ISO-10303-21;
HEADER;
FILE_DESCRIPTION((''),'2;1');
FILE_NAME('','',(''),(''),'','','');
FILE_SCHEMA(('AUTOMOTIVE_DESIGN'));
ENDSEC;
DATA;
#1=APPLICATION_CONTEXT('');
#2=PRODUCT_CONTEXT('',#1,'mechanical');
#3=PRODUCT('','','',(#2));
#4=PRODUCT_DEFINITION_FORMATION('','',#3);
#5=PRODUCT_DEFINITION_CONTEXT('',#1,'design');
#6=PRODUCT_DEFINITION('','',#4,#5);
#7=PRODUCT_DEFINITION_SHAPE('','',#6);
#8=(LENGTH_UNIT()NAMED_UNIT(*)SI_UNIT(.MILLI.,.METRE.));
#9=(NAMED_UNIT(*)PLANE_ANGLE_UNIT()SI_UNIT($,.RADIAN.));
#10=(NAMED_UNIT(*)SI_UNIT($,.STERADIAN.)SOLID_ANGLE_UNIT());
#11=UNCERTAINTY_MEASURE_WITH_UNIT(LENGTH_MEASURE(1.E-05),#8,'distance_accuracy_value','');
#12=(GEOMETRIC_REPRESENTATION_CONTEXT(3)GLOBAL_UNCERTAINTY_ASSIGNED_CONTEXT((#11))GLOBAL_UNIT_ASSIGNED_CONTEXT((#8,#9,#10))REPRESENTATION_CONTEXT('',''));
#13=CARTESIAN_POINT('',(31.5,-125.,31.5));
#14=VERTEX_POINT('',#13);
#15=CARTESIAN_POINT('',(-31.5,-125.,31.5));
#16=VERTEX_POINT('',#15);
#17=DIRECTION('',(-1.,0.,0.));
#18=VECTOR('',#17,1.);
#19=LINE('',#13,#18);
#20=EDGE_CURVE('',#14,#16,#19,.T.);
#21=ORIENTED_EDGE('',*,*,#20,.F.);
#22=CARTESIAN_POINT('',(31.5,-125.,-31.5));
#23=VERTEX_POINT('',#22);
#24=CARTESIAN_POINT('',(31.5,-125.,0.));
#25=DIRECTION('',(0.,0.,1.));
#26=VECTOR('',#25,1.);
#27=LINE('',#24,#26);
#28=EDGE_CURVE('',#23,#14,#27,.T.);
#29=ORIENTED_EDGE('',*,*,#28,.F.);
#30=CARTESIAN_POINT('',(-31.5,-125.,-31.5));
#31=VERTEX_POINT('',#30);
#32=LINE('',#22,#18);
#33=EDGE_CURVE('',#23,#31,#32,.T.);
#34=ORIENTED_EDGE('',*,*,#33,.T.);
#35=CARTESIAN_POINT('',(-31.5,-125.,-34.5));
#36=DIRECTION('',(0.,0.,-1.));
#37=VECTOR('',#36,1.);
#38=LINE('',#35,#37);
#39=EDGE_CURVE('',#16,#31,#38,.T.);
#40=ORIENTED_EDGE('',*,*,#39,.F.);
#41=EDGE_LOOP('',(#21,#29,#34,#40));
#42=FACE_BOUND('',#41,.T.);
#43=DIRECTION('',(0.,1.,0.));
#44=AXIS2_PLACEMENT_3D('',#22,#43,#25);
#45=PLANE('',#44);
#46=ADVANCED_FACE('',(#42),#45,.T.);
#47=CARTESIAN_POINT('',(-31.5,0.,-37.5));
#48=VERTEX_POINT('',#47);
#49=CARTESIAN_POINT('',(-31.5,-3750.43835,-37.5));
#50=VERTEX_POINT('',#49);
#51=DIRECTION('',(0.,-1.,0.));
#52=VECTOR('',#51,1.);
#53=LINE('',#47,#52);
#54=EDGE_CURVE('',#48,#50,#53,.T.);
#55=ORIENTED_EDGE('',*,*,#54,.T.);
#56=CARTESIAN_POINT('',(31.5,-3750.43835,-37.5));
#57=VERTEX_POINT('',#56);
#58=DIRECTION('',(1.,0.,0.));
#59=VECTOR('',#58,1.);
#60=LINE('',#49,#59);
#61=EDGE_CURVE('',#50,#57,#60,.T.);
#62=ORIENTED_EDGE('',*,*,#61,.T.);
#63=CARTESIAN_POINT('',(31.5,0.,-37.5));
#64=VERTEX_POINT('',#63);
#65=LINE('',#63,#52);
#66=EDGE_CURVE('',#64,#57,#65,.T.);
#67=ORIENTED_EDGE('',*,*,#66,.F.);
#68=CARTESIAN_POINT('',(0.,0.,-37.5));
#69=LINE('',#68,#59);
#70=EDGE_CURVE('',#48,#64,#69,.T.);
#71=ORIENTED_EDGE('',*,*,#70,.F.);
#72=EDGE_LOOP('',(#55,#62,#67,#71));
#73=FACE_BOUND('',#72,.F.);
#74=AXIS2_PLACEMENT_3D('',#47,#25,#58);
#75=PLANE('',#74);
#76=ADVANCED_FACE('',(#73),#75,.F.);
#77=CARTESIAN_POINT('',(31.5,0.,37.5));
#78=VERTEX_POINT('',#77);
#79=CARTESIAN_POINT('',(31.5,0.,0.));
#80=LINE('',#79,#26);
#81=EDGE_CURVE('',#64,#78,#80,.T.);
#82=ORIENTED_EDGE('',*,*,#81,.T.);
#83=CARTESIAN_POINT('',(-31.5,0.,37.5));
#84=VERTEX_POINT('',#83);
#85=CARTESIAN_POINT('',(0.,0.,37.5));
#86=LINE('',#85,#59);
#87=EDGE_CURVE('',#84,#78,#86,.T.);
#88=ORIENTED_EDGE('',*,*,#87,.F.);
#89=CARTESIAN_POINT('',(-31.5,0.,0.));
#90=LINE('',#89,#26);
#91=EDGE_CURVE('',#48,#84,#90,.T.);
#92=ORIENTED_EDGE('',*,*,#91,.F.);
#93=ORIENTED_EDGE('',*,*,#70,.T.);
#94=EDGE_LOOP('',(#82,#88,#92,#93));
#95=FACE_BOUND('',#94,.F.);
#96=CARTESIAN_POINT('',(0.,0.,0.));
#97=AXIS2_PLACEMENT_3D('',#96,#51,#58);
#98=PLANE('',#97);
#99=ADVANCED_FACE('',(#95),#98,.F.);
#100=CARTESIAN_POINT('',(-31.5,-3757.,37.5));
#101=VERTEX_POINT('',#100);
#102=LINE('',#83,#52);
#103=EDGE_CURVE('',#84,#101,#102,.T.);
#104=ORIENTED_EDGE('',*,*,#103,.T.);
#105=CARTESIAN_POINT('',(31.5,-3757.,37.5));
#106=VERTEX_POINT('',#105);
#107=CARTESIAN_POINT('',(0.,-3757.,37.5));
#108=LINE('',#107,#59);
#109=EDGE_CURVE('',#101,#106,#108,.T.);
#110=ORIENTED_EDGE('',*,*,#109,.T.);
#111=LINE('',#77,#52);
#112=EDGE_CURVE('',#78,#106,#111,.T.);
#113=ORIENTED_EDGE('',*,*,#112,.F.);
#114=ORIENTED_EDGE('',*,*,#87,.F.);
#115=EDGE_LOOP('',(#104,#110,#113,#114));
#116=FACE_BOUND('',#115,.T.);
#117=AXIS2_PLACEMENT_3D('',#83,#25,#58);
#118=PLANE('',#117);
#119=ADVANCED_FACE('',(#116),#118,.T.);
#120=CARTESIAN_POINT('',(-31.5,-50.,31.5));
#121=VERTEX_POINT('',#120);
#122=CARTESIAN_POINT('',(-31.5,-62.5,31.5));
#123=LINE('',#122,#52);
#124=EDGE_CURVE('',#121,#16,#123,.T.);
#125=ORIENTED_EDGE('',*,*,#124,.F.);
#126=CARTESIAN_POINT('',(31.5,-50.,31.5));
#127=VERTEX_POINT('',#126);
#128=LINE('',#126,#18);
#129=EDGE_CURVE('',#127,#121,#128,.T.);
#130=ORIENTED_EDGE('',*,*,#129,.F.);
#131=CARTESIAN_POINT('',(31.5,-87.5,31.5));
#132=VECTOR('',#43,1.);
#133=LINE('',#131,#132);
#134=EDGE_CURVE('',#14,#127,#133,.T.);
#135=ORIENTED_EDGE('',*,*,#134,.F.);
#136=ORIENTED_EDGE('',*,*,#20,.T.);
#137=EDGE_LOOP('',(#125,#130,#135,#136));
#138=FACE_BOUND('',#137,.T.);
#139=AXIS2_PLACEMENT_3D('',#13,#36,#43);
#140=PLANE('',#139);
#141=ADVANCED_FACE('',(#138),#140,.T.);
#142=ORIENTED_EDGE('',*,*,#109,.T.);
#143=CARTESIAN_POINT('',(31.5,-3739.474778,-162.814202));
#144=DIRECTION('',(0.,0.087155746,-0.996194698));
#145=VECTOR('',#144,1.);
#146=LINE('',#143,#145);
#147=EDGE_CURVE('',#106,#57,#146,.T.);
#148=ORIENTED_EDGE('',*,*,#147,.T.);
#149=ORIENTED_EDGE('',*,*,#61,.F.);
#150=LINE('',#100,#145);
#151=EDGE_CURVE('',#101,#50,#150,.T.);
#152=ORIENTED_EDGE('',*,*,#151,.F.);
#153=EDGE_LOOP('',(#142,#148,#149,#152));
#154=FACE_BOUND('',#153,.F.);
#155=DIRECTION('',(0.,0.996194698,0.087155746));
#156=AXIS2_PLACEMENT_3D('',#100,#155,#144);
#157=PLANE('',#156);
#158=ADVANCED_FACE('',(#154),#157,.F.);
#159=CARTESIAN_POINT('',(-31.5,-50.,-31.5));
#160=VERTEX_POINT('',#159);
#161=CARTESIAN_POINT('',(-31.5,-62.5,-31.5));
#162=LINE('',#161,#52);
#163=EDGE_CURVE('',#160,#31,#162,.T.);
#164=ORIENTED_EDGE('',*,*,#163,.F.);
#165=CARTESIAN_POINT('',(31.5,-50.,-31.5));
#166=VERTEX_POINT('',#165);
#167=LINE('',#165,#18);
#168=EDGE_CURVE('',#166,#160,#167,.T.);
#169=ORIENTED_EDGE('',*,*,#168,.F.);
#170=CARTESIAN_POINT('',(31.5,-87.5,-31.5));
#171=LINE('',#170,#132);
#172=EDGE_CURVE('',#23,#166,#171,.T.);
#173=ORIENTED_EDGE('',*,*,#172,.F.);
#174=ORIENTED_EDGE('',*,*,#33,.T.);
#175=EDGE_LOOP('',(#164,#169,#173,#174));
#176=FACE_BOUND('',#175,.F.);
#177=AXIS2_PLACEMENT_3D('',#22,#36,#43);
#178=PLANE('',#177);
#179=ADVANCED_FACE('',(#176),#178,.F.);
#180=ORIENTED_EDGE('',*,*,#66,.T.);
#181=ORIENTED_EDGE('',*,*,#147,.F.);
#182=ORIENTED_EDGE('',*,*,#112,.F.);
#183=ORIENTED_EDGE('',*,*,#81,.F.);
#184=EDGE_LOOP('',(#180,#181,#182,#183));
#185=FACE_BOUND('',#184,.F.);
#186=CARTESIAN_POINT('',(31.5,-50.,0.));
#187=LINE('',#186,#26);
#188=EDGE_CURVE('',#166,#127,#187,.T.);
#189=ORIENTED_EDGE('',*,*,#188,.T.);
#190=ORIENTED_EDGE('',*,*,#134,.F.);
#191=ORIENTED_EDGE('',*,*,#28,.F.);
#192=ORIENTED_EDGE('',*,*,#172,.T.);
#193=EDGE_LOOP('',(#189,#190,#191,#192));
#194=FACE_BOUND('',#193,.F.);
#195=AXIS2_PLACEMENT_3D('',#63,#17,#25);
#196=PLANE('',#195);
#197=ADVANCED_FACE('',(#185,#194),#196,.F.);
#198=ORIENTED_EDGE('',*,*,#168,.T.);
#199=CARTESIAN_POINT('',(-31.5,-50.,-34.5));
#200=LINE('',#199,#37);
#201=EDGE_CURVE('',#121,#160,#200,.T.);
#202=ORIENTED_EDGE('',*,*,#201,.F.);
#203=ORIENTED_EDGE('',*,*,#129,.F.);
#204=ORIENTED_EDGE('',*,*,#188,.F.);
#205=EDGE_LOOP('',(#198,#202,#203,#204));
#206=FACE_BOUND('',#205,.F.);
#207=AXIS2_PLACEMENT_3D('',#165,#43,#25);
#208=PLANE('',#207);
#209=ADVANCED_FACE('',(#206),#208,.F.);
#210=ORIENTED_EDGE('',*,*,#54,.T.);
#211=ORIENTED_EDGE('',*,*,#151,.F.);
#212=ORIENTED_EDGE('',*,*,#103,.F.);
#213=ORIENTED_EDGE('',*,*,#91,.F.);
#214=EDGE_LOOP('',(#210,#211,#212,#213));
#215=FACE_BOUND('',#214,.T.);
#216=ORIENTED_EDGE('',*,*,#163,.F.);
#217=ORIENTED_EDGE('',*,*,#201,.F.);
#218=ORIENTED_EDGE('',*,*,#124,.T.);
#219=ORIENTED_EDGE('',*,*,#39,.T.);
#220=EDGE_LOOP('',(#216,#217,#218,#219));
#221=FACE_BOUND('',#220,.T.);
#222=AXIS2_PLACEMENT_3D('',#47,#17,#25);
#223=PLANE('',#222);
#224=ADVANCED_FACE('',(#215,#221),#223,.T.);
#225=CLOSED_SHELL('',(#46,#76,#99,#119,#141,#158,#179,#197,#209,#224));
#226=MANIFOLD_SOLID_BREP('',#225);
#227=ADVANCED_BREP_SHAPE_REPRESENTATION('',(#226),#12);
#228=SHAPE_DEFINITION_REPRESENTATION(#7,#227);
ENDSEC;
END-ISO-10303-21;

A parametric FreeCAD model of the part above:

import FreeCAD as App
import Part
import Sketcher

V = App.Vector
Q = App.Units.Quantity

doc = App.newDocument("Part")
body = doc.addObject("PartDesign::Body", "Body")

# Sketch on XZ plane
sketch1 = doc.addObject("Sketcher::SketchObject", "Sketch")
body.addObject(sketch1)
sketch1.AttachmentSupport = (doc.XZ_Plane, [""])
sketch1.MapMode = "FlatFace"
sketch1.addGeometry(Part.LineSegment(V(-32, 38, 0), V(-32, -38, 0)), False)
sketch1.addGeometry(Part.LineSegment(V(-32, -38, 0), V(32, -38, 0)), False)
sketch1.addGeometry(Part.LineSegment(V(32, -38, 0), V(32, 38, 0)), False)
sketch1.addGeometry(Part.LineSegment(V(32, 38, 0), V(-32, 38, 0)), False)
sketch1.addConstraint(Sketcher.Constraint("Coincident", 0, 2, 1, 1))
sketch1.addConstraint(Sketcher.Constraint("Coincident", 1, 2, 2, 1))
sketch1.addConstraint(Sketcher.Constraint("Coincident", 2, 2, 3, 1))
sketch1.addConstraint(Sketcher.Constraint("Coincident", 3, 2, 0, 1))
sketch1.addConstraint(Sketcher.Constraint("Vertical", 0))
sketch1.addConstraint(Sketcher.Constraint("Horizontal", 1))
sketch1.addConstraint(Sketcher.Constraint("Vertical", 2))
sketch1.addConstraint(Sketcher.Constraint("Horizontal", 3))
sketch1.addConstraint(Sketcher.Constraint("Symmetric", 0, 2, 2, 2, -1, 1))
sketch1.addConstraint(Sketcher.Constraint("DistanceX", 1, 1, 1, 2, 63.0))
sketch1.addConstraint(Sketcher.Constraint("DistanceY", 0, 2, 0, 1, 75.0))
pad1 = doc.addObject("PartDesign::Pad", "Pad")
body.addObject(pad1)
pad1.Profile = sketch1
pad1.Length = 3757

# Sketch on YZ plane
sketch2 = doc.addObject("Sketcher::SketchObject", "Sketch001")
body.addObject(sketch2)
sketch2.AttachmentSupport = (doc.YZ_Plane, [""])
sketch2.MapMode = "FlatFace"
sketch2.AttachmentOffset = App.Placement(V(0, 0, -31.5), App.Rotation())
sketch2.addGeometry(Part.LineSegment(V(-3757, -38, 0), V(-3757, 38, 0)), False)
sketch2.addGeometry(Part.LineSegment(V(-3757, 38, 0), V(-3750, -38, 0)), False)
sketch2.addGeometry(Part.LineSegment(V(-3750, -38, 0), V(-3757, -38, 0)), False)
sketch2.addConstraint(Sketcher.Constraint("Coincident", 0, 2, 1, 1))
sketch2.addConstraint(Sketcher.Constraint("Coincident", 1, 2, 2, 1))
sketch2.addConstraint(Sketcher.Constraint("Coincident", 2, 2, 0, 1))
sketch2.addConstraint(Sketcher.Constraint("Vertical", 0))
sketch2.addConstraint(Sketcher.Constraint("Horizontal", 2))
sketch2.addConstraint(Sketcher.Constraint("DistanceY", 0, 1, 0, 2, 75.0))
sketch2.addConstraint(Sketcher.Constraint("Angle", 1, Q("-85 deg")))
sketch2.addConstraint(Sketcher.Constraint("DistanceX", 0, 2, -1, 1, 3757.0))
sketch2.addConstraint(Sketcher.Constraint("DistanceY", -1, 1, 0, 2, 37.5))
pocket1 = doc.addObject("PartDesign::Pocket", "Pocket")
body.addObject(pocket1)
pocket1.Profile = sketch2
pocket1.Type = "ThroughAll"
pocket1.Reversed = True

# Sketch on YZ plane
sketch3 = doc.addObject("Sketcher::SketchObject", "Sketch002")
body.addObject(sketch3)
sketch3.AttachmentSupport = (doc.YZ_Plane, [""])
sketch3.MapMode = "FlatFace"
sketch3.AttachmentOffset = App.Placement(V(0, 0, 31.5), App.Rotation())
sketch3.addGeometry(Part.LineSegment(V(-125, 32, 0), V(-125, -32, 0)), False)
sketch3.addGeometry(Part.LineSegment(V(-125, -32, 0), V(-50, -32, 0)), False)
sketch3.addGeometry(Part.LineSegment(V(-50, -32, 0), V(-50, 32, 0)), False)
sketch3.addGeometry(Part.LineSegment(V(-50, 32, 0), V(-125, 32, 0)), False)
sketch3.addConstraint(Sketcher.Constraint("Coincident", 0, 2, 1, 1))
sketch3.addConstraint(Sketcher.Constraint("Coincident", 1, 2, 2, 1))
sketch3.addConstraint(Sketcher.Constraint("Coincident", 2, 2, 3, 1))
sketch3.addConstraint(Sketcher.Constraint("Coincident", 3, 2, 0, 1))
sketch3.addConstraint(Sketcher.Constraint("Vertical", 0))
sketch3.addConstraint(Sketcher.Constraint("Horizontal", 1))
sketch3.addConstraint(Sketcher.Constraint("Vertical", 2))
sketch3.addConstraint(Sketcher.Constraint("Horizontal", 3))
sketch3.addConstraint(Sketcher.Constraint("DistanceX", 1, 1, 1, 2, 75.0))
sketch3.addConstraint(Sketcher.Constraint("DistanceY", 0, 2, 0, 1, 63.0))
sketch3.addConstraint(Sketcher.Constraint("DistanceX", 0, 2, -1, 1, 125.0))
sketch3.addConstraint(Sketcher.Constraint("DistanceY", 0, 2, -1, 1, 31.5))
pocket2 = doc.addObject("PartDesign::Pocket", "Pocket001")
body.addObject(pocket2)
pocket2.Profile = sketch3
pocket2.Type = "ThroughAll"

doc.recompute()
